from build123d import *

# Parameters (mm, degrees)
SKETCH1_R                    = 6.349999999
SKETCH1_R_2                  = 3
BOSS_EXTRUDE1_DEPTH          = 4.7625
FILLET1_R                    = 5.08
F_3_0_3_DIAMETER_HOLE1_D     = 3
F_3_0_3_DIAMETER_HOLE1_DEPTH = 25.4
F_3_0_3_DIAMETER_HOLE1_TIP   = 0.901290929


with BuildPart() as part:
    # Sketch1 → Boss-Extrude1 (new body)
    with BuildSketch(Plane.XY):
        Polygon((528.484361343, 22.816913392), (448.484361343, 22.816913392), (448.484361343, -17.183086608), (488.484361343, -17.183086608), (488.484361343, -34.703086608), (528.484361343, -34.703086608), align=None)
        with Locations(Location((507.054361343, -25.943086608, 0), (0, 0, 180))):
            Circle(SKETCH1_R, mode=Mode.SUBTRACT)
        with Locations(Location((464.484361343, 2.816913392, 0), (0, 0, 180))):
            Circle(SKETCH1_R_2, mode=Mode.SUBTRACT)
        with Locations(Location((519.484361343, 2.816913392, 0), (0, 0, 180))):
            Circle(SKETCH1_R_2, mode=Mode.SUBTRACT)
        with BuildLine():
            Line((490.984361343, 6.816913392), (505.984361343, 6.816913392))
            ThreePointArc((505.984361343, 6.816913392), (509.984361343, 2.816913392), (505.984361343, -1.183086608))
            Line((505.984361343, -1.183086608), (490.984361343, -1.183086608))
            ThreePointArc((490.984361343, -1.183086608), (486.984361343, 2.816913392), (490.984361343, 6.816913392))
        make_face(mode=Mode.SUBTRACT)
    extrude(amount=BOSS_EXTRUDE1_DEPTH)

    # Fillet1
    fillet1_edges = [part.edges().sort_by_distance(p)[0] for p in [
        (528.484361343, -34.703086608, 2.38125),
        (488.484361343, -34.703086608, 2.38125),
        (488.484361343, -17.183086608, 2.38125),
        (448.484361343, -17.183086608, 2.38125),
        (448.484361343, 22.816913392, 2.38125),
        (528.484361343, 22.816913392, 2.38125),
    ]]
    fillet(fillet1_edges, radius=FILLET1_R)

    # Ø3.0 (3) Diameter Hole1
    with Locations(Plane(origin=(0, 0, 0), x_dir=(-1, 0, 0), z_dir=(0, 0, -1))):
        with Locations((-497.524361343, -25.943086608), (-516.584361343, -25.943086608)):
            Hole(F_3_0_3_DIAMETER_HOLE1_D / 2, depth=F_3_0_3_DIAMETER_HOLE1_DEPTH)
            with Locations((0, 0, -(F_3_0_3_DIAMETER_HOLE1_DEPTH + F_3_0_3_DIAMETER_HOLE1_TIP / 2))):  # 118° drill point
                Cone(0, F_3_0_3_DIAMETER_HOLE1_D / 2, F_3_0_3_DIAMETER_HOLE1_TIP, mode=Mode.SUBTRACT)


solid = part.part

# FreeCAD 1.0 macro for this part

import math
import FreeCAD as App
import Part
import Sketcher
Q = App.Units.Quantity


def edges_at(feature, points):
    """Names of the edges that pass closest to the given points."""
    edges = feature.Shape.Edges
    near = lambda p: min(range(len(edges)), key=lambda i: edges[i].distToShape(Part.Vertex(*p))[0])
    return sorted({f"Edge{near(p) + 1}" for p in points})


def add_polygon(sketch, points):
    """Adds a closed chain of lines whose ends are joined by coincident constraints."""
    first, n = sketch.GeometryCount, len(points)
    for a, b in zip(points, points[1:] + points[:1]):
        sketch.addGeometry(Part.LineSegment(App.Vector(*a, 0), App.Vector(*b, 0)), False)
    for i in range(n):
        sketch.addConstraint(Sketcher.Constraint("Coincident", first + i, 2, first + (i + 1) % n, 1))

doc = App.newDocument("Part")
params = doc.addObject("Spreadsheet::Sheet", "Params")
for row, (alias, value) in enumerate([
    ("sketch1_diameter", "6 mm"),
    ("sketch1_radius", "4 mm"),
    ("sketch1_diameter2", "12.7 mm"),
    ("sketch1_width", "80 mm"),
    ("sketch1_width2", "15 mm"),
    ("pad1_length", "4.7625 mm"),
    ("fillet_radius", "5.08 mm"),
    ("sketch2_diameter", "3 mm"),
    ("hole_diameter", "3 mm"),
    ("hole_depth", "25.4 mm"),
], start=1):
    params.set(f"A{row}", alias)
    params.set(f"B{row}", "=" + value)
    params.setAlias(f"B{row}", alias)

body = doc.addObject("PartDesign::Body", "Body")

sketch1 = body.newObject("Sketcher::SketchObject", "Sketch")
sketch1.AttachmentSupport = (doc.getObject("XY_Plane"), [""])
sketch1.MapMode = "FlatFace"
add_polygon(sketch1, [(528.5, 22.8), (448.5, 22.8), (448.5, -17.2), (488.5, -17.2), (488.5, -34.7), (528.5, -34.7)])
sketch1.addGeometry(Part.Circle(App.Vector(507.1, -25.9, 0), App.Vector(0, 0, 1), 6.3), False)
sketch1.addGeometry(Part.Circle(App.Vector(464.5, 2.8, 0), App.Vector(0, 0, 1), 3), False)
sketch1.addGeometry(Part.ArcOfCircle(Part.Circle(App.Vector(491, 2.8, 0), App.Vector(0, 0, 1), 4), math.radians(90), math.radians(270)), False)
sketch1.addGeometry(Part.LineSegment(App.Vector(491, 6.8, 0), App.Vector(506, 6.8, 0)), False)
sketch1.addGeometry(Part.ArcOfCircle(Part.Circle(App.Vector(506, 2.8, 0), App.Vector(0, 0, 1), 4), math.radians(-90), math.radians(90)), False)
sketch1.addGeometry(Part.LineSegment(App.Vector(506, -1.2, 0), App.Vector(491, -1.2, 0)), False)
sketch1.addGeometry(Part.Circle(App.Vector(519.5, 2.8, 0), App.Vector(0, 0, 1), 3), False)
sketch1.addConstraint(Sketcher.Constraint("Tangent", 8, 1, 9, 1))
sketch1.addConstraint(Sketcher.Constraint("Tangent", 9, 2, 10, 2))
sketch1.addConstraint(Sketcher.Constraint("Tangent", 10, 1, 11, 1))
sketch1.addConstraint(Sketcher.Constraint("Tangent", 11, 2, 8, 2))
sketch1.addConstraint(Sketcher.Constraint("Horizontal", 0))
sketch1.addConstraint(Sketcher.Constraint("Vertical", 1))
sketch1.addConstraint(Sketcher.Constraint("Horizontal", 2))
sketch1.addConstraint(Sketcher.Constraint("Vertical", 3))
sketch1.addConstraint(Sketcher.Constraint("Horizontal", 4))
sketch1.addConstraint(Sketcher.Constraint("Vertical", 5))
sketch1.addConstraint(Sketcher.Constraint("Horizontal", 9))
sketch1.addConstraint(Sketcher.Constraint("Horizontal", 11))
sketch1.addConstraint(Sketcher.Constraint("Equal", 7, 12))
sketch1.addConstraint(Sketcher.Constraint("Horizontal", 7, 3, 8, 3))
sketch1.addConstraint(Sketcher.Constraint("Horizontal", 10, 3, 12, 3))
sketch1.addConstraint(Sketcher.Constraint("Equal", 2, 4))
sketch1.addConstraint(Sketcher.Constraint("Equal", 4, 1))
sketch1.addConstraint(Sketcher.Constraint("Diameter", 7, Q("6 mm")))
sketch1.addConstraint(Sketcher.Constraint("Radius", 8, Q("4 mm")))
sketch1.addConstraint(Sketcher.Constraint("Diameter", 6, Q("12.7 mm")))
sketch1.addConstraint(Sketcher.Constraint("DistanceX", 0, 2, 0, 1, Q("80 mm")))
sketch1.addConstraint(Sketcher.Constraint("DistanceX", 9, 1, 9, 2, Q("15 mm")))
sketch1.addConstraint(Sketcher.Constraint("DistanceX", 7, 3, 12, 3, Q("55 mm")))
sketch1.addConstraint(Sketcher.Constraint("DistanceX", 0, 2, 7, 3, Q("16 mm")))
sketch1.addConstraint(Sketcher.Constraint("DistanceY", 7, 3, 0, 2, Q("20 mm")))
sketch1.addConstraint(Sketcher.Constraint("DistanceY", 3, 2, 3, 1, Q("17.52 mm")))
sketch1.addConstraint(Sketcher.Constraint("DistanceX", 7, 3, 8, 3, Q("26.5 mm")))
sketch1.addConstraint(Sketcher.Constraint("DistanceX", 7, 3, 6, 3, Q("42.57 mm")))
sketch1.addConstraint(Sketcher.Constraint("DistanceY", 6, 3, 7, 3, Q("28.76 mm")))
sketch1.addConstraint(Sketcher.Constraint("DistanceX", -1, 1, 6, 3, Q("507.054361 mm")))
sketch1.addConstraint(Sketcher.Constraint("DistanceY", 6, 3, -1, 1, Q("25.943087 mm")))
sketch1.setExpression("Constraints[23]", "Params.sketch1_diameter")
sketch1.setExpression("Constraints[24]", "Params.sketch1_radius")
sketch1.setExpression("Constraints[25]", "Params.sketch1_diameter2")
sketch1.setExpression("Constraints[26]", "Params.sketch1_width")
sketch1.setExpression("Constraints[27]", "Params.sketch1_width2")
pad1 = body.newObject("PartDesign::Pad", "Pad")
pad1.Profile = sketch1
pad1.setExpression("Length", "Params.pad1_length")
doc.recompute()

fillet = body.newObject("PartDesign::Fillet", "Fillet")
fillet.Base = (pad1, edges_at(pad1, [
    (528.484, -34.703, 2.381),
    (488.484, -34.703, 2.381),
    (488.484, -17.183, 2.381),
    (448.484, -17.183, 2.381),
    (448.484, 22.817, 2.381),
    (528.484, 22.817, 2.381),
]))
fillet.setExpression("Radius", "Params.fillet_radius")

sketch2 = body.newObject("Sketcher::SketchObject", "Sketch001")
sketch2.AttachmentSupport = (doc.getObject("XY_Plane"), [""])
sketch2.MapMode = "FlatFace"
sketch2.addGeometry(Part.Circle(App.Vector(497.5, -25.9, 0), App.Vector(0, 0, 1), 1.5), False)
sketch2.addGeometry(Part.Circle(App.Vector(516.6, -25.9, 0), App.Vector(0, 0, 1), 1.5), False)
sketch2.addConstraint(Sketcher.Constraint("Equal", 0, 1))
sketch2.addConstraint(Sketcher.Constraint("Horizontal", 0, 3, 1, 3))
sketch2.addConstraint(Sketcher.Constraint("Diameter", 0, Q("3 mm")))
sketch2.addConstraint(Sketcher.Constraint("DistanceX", 0, 3, 1, 3, Q("19.06 mm")))
sketch2.addConstraint(Sketcher.Constraint("DistanceX", -1, 1, 0, 3, Q("497.524361 mm")))
sketch2.addConstraint(Sketcher.Constraint("DistanceY", 0, 3, -1, 1, Q("25.943087 mm")))
sketch2.setExpression("Constraints[2]", "Params.sketch2_diameter")
doc.recompute()
hole = body.newObject("PartDesign::Hole", "Hole")
hole.Profile = sketch2
hole.ThreadType = "None"
hole.setExpression("Diameter", "Params.hole_diameter")
hole.DepthType = "Dimension"
hole.setExpression("Depth", "Params.hole_depth")
hole.DrillPoint = "Angled"
hole.DrillPointAngle = 118
hole.Reversed = True

doc.recompute()
